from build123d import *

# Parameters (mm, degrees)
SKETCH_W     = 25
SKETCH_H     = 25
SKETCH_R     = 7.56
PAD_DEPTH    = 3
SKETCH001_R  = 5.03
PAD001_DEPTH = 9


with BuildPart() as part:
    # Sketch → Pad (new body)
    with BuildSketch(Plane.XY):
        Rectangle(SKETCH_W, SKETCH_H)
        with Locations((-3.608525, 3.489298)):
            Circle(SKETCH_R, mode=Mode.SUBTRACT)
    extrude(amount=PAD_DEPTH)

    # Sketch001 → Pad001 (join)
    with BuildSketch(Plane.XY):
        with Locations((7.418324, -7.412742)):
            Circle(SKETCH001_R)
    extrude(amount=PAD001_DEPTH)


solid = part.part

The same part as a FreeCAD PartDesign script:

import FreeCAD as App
import Part
import Sketcher
Q = App.Units.Quantity


def add_polygon(sketch, points):
    """Adds a closed chain of lines whose ends are joined by coincident constraints."""
    first, n = sketch.GeometryCount, len(points)
    for a, b in zip(points, points[1:] + points[:1]):
        sketch.addGeometry(Part.LineSegment(App.Vector(*a, 0), App.Vector(*b, 0)), False)
    for i in range(n):
        sketch.addConstraint(Sketcher.Constraint("Coincident", first + i, 2, first + (i + 1) % n, 1))

doc = App.newDocument("Part")
body = doc.addObject("PartDesign::Body", "Body")

# Sketch on XY plane
sketch1 = doc.addObject("Sketcher::SketchObject", "Sketch")
body.addObject(sketch1)
sketch1.AttachmentSupport = (doc.XY_Plane, [""])
sketch1.MapMode = "FlatFace"
add_polygon(sketch1, [(-12, 12), (-12, -12), (12, -12), (12, 12)])  # lines 0-3
sketch1.addGeometry(Part.Circle(App.Vector(-4, 3, 0), App.Vector(0, 0, 1), 8), False)  # 4
sketch1.addConstraint([
    Sketcher.Constraint("Vertical", 0),
    Sketcher.Constraint("Horizontal", 1),
    Sketcher.Constraint("Vertical", 2),
    Sketcher.Constraint("Horizontal", 3),
    Sketcher.Constraint("Symmetric", 0, 2, 2, 2, -1, 1),
    Sketcher.Constraint("Equal", 3, 0),
    Sketcher.Constraint("Diameter", 4, Q("15.12 mm")),
    Sketcher.Constraint("DistanceX", 1, 1, 1, 2, Q("25 mm")),
    Sketcher.Constraint("DistanceX", 4, 3, -1, 1, Q("3.608525 mm")),
    Sketcher.Constraint("DistanceY", -1, 1, 4, 3, Q("3.489298 mm")),
])
pad1 = doc.addObject("PartDesign::Pad", "Pad")
body.addObject(pad1)
pad1.Profile = sketch1
pad1.Length = 3

# Sketch on XY plane
sketch2 = doc.addObject("Sketcher::SketchObject", "Sketch001")
body.addObject(sketch2)
sketch2.AttachmentSupport = (doc.XY_Plane, [""])
sketch2.MapMode = "FlatFace"
sketch2.addGeometry(Part.Circle(App.Vector(7, -7, 0), App.Vector(0, 0, 1), 5), False)
sketch2.addConstraint([
    Sketcher.Constraint("Diameter", 0, Q("10.06 mm")),
    Sketcher.Constraint("DistanceY", 0, 3, -1, 1, Q("7.412742 mm")),
    Sketcher.Constraint("DistanceX", -1, 1, 0, 3, Q("7.418324 mm")),
])
pad2 = doc.addObject("PartDesign::Pad", "Pad001")
body.addObject(pad2)
pad2.Profile = sketch2
pad2.Length = 9

doc.recompute()
